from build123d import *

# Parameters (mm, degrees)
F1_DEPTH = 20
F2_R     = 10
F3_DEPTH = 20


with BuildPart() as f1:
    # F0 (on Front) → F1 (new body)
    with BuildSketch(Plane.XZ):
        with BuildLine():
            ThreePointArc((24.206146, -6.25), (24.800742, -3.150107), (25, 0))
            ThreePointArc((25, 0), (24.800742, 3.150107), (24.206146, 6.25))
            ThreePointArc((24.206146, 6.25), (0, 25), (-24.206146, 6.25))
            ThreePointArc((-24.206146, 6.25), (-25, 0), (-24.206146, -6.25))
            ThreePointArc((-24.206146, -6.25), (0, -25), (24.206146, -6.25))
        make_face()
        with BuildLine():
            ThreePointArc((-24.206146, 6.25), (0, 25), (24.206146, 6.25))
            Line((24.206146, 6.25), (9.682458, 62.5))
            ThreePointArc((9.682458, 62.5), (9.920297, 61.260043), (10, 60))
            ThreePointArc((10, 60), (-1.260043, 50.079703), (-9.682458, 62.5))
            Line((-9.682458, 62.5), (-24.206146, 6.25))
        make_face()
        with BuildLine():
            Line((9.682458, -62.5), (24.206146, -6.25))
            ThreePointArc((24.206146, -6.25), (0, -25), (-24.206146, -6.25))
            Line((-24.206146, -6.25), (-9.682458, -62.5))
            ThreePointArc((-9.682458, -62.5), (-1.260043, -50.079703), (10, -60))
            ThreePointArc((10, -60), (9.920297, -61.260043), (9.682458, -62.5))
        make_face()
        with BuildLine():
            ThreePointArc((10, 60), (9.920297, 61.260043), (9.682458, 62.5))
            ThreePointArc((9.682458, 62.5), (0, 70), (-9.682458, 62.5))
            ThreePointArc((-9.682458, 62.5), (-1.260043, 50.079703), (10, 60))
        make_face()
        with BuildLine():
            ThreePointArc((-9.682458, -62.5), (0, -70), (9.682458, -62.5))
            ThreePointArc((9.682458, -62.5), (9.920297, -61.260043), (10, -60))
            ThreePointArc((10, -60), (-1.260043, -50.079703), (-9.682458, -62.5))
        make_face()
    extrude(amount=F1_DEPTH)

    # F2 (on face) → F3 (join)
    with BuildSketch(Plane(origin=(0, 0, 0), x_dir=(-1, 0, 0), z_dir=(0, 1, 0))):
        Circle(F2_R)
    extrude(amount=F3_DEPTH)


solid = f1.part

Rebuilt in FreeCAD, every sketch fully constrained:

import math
import FreeCAD as App
import Part
import Sketcher

V = App.Vector

doc = App.newDocument("Part")
params = doc.addObject("Spreadsheet::Sheet", "Params")
for row, (alias, value) in enumerate([
    ("sketch1_radius", "10 mm"),
    ("sketch1_radius2", "10 mm"),
    ("pad1_length", "20 mm"),
    ("sketch2_diameter", "20 mm"),
    ("pad2_length", "20 mm"),
], start=1):
    params.set(f"A{row}", alias)
    params.set(f"B{row}", "=" + value)
    params.setAlias(f"B{row}", alias)

body = doc.addObject("PartDesign::Body", "Body")

sketch1 = body.newObject("Sketcher::SketchObject", "Sketch")
sketch1.AttachmentSupport = (doc.getObject("XZ_Plane"), [""])
sketch1.MapMode = "FlatFace"
sketch1.addGeometry([
    Part.ArcOfCircle(Part.Circle(V(-0.00006, 0.000007, 0), V(0, 0, 1), 25.00006), math.radians(-14.477494), math.radians(-0.000017)),
    Part.ArcOfCircle(Part.Circle(V(-0.00006, -0.000007, 0), V(0, 0, 1), 25.00006), math.radians(0.000017), math.radians(14.477494)),
    Part.LineSegment(V(24.206146, 6.25, 0), V(9.682458, 62.5, 0)),
    Part.ArcOfCircle(Part.Circle(V(0, 60, 0), V(0, 0, 1), 10), math.radians(14.47751), math.radians(165.52249)),
    Part.LineSegment(V(-9.682458, 62.5, 0), V(-24.206146, 6.25, 0)),
    Part.ArcOfCircle(Part.Circle(V(0.000003, 0, 0), V(0, 0, 1), 25.000003), math.radians(165.522489), math.radians(194.477511)),
    Part.LineSegment(V(-24.206146, -6.25, 0), V(-9.682458, -62.5, 0)),
    Part.ArcOfCircle(Part.Circle(V(0, -60, 0), V(0, 0, 1), 10), math.radians(-165.52249), math.radians(-14.47751)),
    Part.LineSegment(V(9.682458, -62.5, 0), V(24.206146, -6.25, 0)),
], False)
sketch1.addConstraint([
    Sketcher.Constraint("Coincident", 0, 2, 1, 1),
    Sketcher.Constraint("Coincident", 1, 2, 2, 1),
    Sketcher.Constraint("Coincident", 2, 2, 3, 1),
    Sketcher.Constraint("Coincident", 3, 2, 4, 1),
    Sketcher.Constraint("Coincident", 4, 2, 5, 1),
    Sketcher.Constraint("Coincident", 5, 2, 6, 1),
    Sketcher.Constraint("Coincident", 6, 2, 7, 1),
    Sketcher.Constraint("Coincident", 7, 2, 8, 1),
    Sketcher.Constraint("Coincident", 8, 2, 0, 1),
    Sketcher.Constraint("Coincident", 5, 3, -1, 1),
    Sketcher.Constraint("PointOnObject", 3, 3, -2),
    Sketcher.Constraint("PointOnObject", 7, 3, -2),
    Sketcher.Constraint("PointOnObject", 0, 2, -1),
    Sketcher.Constraint("Radius", 3, 10.0),
    Sketcher.Constraint("Radius", 7, 10.0),
    Sketcher.Constraint("DistanceY", -1, 1, 3, 3, 60.0),
    Sketcher.Constraint("DistanceY", 7, 3, -1, 1, 60.0),
    Sketcher.Constraint("DistanceX", -1, 1, 0, 2, 25.0),
    Sketcher.Constraint("DistanceY", -1, 1, 2, 2, 62.5),
    Sketcher.Constraint("DistanceY", -1, 1, 3, 2, 62.5),
    Sketcher.Constraint("DistanceY", 6, 2, -1, 1, 62.5),
    Sketcher.Constraint("DistanceY", 7, 2, -1, 1, 62.5),
    Sketcher.Constraint("DistanceY", 5, 2, 4, 2, 12.5),
    Sketcher.Constraint("DistanceY", 8, 2, 1, 2, 12.5),
    Sketcher.Constraint("DistanceY", -1, 1, 1, 2, 6.25),
    Sketcher.Constraint("DistanceY", -1, 1, 4, 2, 6.25),
    Sketcher.Constraint("Radius", 0, 25.00006),
    Sketcher.Constraint("Radius", 1, 25.00006),
    Sketcher.Constraint("Radius", 5, 25.000003),
    Sketcher.Constraint("Distance", 2, 58.09475),
    Sketcher.Constraint("Distance", 8, 58.09475),
])
sketch1.setExpression("Constraints[13]", "Params.sketch1_radius")
sketch1.setExpression("Constraints[14]", "Params.sketch1_radius2")
pad1 = body.newObject("PartDesign::Pad", "Pad")
pad1.Profile = sketch1
pad1.setExpression("Length", "Params.pad1_length")

sketch2 = body.newObject("Sketcher::SketchObject", "Sketch001")
sketch2.AttachmentSupport = (doc.getObject("XZ_Plane"), [""])
sketch2.MapMode = "FlatFace"
sketch2.addGeometry(Part.Circle(V(0, 0, 0), V(0, 0, 1), 10), False)
sketch2.addConstraint([
    Sketcher.Constraint("Coincident", 0, 3, -1, 1),
    Sketcher.Constraint("Diameter", 0, 20.0),
])
sketch2.setExpression("Constraints[1]", "Params.sketch2_diameter")
pad2 = body.newObject("PartDesign::Pad", "Pad001")
pad2.Profile = sketch2
pad2.setExpression("Length", "Params.pad2_length")
pad2.Reversed = True

doc.recompute()
